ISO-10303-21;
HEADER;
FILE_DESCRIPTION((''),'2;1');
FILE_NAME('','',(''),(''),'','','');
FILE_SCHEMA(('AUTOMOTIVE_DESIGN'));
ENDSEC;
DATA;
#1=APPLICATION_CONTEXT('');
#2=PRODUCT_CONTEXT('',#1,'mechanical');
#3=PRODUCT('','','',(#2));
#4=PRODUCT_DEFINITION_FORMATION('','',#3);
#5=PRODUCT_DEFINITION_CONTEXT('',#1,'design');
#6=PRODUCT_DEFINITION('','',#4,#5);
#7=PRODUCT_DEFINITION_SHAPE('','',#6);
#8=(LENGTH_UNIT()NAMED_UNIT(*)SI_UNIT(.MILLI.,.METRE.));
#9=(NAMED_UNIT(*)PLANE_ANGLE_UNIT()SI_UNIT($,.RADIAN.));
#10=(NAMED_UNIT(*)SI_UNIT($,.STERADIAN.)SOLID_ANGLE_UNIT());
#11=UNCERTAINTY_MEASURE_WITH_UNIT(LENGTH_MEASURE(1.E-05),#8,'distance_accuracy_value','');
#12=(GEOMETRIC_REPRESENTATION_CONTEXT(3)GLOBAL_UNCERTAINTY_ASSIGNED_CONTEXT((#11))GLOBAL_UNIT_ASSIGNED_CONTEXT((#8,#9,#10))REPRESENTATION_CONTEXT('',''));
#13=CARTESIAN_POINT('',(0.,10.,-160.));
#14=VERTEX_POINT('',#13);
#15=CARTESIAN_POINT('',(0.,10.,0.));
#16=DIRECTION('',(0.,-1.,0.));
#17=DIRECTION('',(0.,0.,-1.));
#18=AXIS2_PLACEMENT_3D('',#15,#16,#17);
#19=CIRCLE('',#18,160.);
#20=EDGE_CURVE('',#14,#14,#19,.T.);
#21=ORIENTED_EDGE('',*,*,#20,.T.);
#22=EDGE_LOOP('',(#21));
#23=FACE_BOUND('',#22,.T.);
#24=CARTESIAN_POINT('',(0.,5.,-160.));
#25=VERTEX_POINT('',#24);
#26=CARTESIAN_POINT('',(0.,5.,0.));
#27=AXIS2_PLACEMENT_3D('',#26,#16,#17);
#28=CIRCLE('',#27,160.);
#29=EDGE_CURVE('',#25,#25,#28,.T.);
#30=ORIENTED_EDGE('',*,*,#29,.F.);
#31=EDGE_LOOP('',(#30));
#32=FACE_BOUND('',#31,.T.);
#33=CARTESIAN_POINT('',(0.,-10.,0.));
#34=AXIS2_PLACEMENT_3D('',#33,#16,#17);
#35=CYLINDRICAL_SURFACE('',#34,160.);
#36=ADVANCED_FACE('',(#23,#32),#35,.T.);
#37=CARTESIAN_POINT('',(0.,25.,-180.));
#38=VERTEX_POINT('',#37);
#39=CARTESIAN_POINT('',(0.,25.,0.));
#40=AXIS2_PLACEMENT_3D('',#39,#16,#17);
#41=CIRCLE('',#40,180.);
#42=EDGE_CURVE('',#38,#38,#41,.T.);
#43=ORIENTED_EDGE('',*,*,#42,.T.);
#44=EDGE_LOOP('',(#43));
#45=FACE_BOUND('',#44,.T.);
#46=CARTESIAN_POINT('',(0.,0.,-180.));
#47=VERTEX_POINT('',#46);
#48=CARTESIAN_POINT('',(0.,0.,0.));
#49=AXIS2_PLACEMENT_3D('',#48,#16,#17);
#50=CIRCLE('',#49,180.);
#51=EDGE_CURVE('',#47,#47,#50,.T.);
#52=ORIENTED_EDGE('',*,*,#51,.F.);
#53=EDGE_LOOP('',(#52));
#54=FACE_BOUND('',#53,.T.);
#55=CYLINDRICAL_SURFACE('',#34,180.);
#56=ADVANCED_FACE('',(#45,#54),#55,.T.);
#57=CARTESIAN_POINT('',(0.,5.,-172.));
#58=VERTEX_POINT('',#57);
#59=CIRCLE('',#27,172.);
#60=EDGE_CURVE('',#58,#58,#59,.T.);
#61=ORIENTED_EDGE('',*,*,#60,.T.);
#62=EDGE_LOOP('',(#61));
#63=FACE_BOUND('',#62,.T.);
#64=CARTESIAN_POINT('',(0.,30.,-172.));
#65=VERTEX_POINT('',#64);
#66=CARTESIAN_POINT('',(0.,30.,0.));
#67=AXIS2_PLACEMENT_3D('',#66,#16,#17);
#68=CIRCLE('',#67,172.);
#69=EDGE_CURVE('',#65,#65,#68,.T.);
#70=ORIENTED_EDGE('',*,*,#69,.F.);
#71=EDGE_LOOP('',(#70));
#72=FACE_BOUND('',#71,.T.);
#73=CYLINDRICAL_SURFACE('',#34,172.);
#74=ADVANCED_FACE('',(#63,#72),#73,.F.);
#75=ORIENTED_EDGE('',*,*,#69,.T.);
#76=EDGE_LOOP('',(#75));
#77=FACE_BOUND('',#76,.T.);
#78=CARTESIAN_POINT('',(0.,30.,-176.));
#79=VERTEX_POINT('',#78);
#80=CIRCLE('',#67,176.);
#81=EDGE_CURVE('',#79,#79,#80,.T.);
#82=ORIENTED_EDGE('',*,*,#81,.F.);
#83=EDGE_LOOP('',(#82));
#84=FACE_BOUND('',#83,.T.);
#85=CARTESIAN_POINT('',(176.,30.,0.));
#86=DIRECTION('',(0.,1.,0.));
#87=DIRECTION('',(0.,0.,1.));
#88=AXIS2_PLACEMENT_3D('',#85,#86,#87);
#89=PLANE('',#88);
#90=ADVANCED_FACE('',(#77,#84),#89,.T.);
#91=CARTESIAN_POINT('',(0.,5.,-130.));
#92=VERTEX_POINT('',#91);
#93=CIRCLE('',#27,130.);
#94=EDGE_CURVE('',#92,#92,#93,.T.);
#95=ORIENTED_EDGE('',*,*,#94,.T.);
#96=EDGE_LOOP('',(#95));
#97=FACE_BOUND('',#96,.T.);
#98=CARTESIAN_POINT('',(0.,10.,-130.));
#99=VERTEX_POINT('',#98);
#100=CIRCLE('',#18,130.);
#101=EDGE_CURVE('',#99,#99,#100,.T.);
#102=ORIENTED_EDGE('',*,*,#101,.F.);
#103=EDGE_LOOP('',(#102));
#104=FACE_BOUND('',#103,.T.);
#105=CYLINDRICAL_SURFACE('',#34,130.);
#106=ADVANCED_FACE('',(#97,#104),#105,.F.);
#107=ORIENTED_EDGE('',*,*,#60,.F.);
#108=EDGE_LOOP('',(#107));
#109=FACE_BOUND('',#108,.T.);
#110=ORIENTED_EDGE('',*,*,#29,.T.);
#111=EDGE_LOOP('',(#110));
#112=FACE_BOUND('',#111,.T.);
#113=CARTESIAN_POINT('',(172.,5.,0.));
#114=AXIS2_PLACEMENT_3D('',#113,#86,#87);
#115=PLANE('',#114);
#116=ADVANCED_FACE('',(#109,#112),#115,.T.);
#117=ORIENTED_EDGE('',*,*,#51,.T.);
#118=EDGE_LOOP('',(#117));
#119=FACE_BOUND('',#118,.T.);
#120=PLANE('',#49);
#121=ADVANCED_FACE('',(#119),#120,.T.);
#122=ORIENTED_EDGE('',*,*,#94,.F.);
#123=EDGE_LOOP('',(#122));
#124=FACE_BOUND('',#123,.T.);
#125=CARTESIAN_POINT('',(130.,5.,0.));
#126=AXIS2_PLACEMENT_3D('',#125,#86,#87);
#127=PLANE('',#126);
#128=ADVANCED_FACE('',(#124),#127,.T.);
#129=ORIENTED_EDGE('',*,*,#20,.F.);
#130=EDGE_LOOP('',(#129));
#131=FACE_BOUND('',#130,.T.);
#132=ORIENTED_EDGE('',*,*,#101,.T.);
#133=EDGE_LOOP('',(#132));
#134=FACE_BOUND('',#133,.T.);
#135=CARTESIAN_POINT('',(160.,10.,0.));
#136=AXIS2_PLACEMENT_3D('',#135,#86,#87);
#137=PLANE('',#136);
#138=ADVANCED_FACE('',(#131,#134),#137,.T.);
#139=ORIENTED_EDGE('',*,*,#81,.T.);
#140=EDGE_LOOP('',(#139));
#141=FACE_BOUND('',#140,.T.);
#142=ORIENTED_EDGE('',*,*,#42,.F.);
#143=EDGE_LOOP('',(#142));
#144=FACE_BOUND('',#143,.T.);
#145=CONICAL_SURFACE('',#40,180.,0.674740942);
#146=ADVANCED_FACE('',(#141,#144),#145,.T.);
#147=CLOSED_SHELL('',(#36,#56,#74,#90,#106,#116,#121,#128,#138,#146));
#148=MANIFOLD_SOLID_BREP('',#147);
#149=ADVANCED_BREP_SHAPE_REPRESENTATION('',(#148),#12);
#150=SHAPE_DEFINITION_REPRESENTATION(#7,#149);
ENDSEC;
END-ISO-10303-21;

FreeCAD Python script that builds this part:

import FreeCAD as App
import Part
import Sketcher
from FreeCAD import Vector


def add_polygon(sketch, points):
    """Adds a closed chain of lines whose ends are joined by coincident constraints."""
    first, n = sketch.GeometryCount, len(points)
    for a, b in zip(points, points[1:] + points[:1]):
        sketch.addGeometry(Part.LineSegment(App.Vector(*a, 0), App.Vector(*b, 0)), False)
    for i in range(n):
        sketch.addConstraint(Sketcher.Constraint("Coincident", first + i, 2, first + (i + 1) % n, 1))

doc = App.newDocument("Part")
body = doc.addObject("PartDesign::Body", "Body")

# Sketch on XY plane
sketch1 = doc.addObject("Sketcher::SketchObject", "Sketch")
body.addObject(sketch1)
sketch1.AttachmentSupport = (doc.XY_Plane, [""])
sketch1.MapMode = "FlatFace"
add_polygon(sketch1, [(0, 0), (180, 0), (180, 25), (176, 30), (172, 30), (172, 5), (160, 5), (160, 10), (130, 10), (130, 5), (0, 5)])  # lines 0-10
sketch1.addConstraint(Sketcher.Constraint("Horizontal", 0))
sketch1.addConstraint(Sketcher.Constraint("Vertical", 1))
sketch1.addConstraint(Sketcher.Constraint("Horizontal", 3))
sketch1.addConstraint(Sketcher.Constraint("Vertical", 4))
sketch1.addConstraint(Sketcher.Constraint("Horizontal", 5))
sketch1.addConstraint(Sketcher.Constraint("Vertical", 6))
sketch1.addConstraint(Sketcher.Constraint("Horizontal", 7))
sketch1.addConstraint(Sketcher.Constraint("Vertical", 8))
sketch1.addConstraint(Sketcher.Constraint("Horizontal", 9))
sketch1.addConstraint(Sketcher.Constraint("Vertical", 10))
sketch1.addConstraint(Sketcher.Constraint("Coincident", 10, 2, -1, 1))
sketch1.addConstraint(Sketcher.Constraint("Horizontal", 5, 2, 8, 2))
sketch1.addConstraint(Sketcher.Constraint("Equal", 1, 4))
sketch1.addConstraint(Sketcher.Constraint("Equal", 8, 10))
sketch1.addConstraint(Sketcher.Constraint("DistanceX", 0, 1, 0, 2, 180.0))
sketch1.addConstraint(Sketcher.Constraint("DistanceX", 3, 2, 3, 1, 4.0))
sketch1.addConstraint(Sketcher.Constraint("DistanceX", 5, 2, 5, 1, 12.0))
sketch1.addConstraint(Sketcher.Constraint("DistanceX", 7, 2, 7, 1, 30.0))
sketch1.addConstraint(Sketcher.Constraint("DistanceX", 9, 2, 9, 1, 130.0))
sketch1.addConstraint(Sketcher.Constraint("DistanceY", 1, 1, 1, 2, 25.0))
sketch1.addConstraint(Sketcher.Constraint("DistanceY", 6, 1, 6, 2, 5.0))
revolution = doc.addObject("PartDesign::Revolution", "Revolution")
body.addObject(revolution)
revolution.Profile = sketch1
revolution.ReferenceAxis = (sketch1, ["V_Axis"])
revolution.Angle = 360

doc.recompute()
